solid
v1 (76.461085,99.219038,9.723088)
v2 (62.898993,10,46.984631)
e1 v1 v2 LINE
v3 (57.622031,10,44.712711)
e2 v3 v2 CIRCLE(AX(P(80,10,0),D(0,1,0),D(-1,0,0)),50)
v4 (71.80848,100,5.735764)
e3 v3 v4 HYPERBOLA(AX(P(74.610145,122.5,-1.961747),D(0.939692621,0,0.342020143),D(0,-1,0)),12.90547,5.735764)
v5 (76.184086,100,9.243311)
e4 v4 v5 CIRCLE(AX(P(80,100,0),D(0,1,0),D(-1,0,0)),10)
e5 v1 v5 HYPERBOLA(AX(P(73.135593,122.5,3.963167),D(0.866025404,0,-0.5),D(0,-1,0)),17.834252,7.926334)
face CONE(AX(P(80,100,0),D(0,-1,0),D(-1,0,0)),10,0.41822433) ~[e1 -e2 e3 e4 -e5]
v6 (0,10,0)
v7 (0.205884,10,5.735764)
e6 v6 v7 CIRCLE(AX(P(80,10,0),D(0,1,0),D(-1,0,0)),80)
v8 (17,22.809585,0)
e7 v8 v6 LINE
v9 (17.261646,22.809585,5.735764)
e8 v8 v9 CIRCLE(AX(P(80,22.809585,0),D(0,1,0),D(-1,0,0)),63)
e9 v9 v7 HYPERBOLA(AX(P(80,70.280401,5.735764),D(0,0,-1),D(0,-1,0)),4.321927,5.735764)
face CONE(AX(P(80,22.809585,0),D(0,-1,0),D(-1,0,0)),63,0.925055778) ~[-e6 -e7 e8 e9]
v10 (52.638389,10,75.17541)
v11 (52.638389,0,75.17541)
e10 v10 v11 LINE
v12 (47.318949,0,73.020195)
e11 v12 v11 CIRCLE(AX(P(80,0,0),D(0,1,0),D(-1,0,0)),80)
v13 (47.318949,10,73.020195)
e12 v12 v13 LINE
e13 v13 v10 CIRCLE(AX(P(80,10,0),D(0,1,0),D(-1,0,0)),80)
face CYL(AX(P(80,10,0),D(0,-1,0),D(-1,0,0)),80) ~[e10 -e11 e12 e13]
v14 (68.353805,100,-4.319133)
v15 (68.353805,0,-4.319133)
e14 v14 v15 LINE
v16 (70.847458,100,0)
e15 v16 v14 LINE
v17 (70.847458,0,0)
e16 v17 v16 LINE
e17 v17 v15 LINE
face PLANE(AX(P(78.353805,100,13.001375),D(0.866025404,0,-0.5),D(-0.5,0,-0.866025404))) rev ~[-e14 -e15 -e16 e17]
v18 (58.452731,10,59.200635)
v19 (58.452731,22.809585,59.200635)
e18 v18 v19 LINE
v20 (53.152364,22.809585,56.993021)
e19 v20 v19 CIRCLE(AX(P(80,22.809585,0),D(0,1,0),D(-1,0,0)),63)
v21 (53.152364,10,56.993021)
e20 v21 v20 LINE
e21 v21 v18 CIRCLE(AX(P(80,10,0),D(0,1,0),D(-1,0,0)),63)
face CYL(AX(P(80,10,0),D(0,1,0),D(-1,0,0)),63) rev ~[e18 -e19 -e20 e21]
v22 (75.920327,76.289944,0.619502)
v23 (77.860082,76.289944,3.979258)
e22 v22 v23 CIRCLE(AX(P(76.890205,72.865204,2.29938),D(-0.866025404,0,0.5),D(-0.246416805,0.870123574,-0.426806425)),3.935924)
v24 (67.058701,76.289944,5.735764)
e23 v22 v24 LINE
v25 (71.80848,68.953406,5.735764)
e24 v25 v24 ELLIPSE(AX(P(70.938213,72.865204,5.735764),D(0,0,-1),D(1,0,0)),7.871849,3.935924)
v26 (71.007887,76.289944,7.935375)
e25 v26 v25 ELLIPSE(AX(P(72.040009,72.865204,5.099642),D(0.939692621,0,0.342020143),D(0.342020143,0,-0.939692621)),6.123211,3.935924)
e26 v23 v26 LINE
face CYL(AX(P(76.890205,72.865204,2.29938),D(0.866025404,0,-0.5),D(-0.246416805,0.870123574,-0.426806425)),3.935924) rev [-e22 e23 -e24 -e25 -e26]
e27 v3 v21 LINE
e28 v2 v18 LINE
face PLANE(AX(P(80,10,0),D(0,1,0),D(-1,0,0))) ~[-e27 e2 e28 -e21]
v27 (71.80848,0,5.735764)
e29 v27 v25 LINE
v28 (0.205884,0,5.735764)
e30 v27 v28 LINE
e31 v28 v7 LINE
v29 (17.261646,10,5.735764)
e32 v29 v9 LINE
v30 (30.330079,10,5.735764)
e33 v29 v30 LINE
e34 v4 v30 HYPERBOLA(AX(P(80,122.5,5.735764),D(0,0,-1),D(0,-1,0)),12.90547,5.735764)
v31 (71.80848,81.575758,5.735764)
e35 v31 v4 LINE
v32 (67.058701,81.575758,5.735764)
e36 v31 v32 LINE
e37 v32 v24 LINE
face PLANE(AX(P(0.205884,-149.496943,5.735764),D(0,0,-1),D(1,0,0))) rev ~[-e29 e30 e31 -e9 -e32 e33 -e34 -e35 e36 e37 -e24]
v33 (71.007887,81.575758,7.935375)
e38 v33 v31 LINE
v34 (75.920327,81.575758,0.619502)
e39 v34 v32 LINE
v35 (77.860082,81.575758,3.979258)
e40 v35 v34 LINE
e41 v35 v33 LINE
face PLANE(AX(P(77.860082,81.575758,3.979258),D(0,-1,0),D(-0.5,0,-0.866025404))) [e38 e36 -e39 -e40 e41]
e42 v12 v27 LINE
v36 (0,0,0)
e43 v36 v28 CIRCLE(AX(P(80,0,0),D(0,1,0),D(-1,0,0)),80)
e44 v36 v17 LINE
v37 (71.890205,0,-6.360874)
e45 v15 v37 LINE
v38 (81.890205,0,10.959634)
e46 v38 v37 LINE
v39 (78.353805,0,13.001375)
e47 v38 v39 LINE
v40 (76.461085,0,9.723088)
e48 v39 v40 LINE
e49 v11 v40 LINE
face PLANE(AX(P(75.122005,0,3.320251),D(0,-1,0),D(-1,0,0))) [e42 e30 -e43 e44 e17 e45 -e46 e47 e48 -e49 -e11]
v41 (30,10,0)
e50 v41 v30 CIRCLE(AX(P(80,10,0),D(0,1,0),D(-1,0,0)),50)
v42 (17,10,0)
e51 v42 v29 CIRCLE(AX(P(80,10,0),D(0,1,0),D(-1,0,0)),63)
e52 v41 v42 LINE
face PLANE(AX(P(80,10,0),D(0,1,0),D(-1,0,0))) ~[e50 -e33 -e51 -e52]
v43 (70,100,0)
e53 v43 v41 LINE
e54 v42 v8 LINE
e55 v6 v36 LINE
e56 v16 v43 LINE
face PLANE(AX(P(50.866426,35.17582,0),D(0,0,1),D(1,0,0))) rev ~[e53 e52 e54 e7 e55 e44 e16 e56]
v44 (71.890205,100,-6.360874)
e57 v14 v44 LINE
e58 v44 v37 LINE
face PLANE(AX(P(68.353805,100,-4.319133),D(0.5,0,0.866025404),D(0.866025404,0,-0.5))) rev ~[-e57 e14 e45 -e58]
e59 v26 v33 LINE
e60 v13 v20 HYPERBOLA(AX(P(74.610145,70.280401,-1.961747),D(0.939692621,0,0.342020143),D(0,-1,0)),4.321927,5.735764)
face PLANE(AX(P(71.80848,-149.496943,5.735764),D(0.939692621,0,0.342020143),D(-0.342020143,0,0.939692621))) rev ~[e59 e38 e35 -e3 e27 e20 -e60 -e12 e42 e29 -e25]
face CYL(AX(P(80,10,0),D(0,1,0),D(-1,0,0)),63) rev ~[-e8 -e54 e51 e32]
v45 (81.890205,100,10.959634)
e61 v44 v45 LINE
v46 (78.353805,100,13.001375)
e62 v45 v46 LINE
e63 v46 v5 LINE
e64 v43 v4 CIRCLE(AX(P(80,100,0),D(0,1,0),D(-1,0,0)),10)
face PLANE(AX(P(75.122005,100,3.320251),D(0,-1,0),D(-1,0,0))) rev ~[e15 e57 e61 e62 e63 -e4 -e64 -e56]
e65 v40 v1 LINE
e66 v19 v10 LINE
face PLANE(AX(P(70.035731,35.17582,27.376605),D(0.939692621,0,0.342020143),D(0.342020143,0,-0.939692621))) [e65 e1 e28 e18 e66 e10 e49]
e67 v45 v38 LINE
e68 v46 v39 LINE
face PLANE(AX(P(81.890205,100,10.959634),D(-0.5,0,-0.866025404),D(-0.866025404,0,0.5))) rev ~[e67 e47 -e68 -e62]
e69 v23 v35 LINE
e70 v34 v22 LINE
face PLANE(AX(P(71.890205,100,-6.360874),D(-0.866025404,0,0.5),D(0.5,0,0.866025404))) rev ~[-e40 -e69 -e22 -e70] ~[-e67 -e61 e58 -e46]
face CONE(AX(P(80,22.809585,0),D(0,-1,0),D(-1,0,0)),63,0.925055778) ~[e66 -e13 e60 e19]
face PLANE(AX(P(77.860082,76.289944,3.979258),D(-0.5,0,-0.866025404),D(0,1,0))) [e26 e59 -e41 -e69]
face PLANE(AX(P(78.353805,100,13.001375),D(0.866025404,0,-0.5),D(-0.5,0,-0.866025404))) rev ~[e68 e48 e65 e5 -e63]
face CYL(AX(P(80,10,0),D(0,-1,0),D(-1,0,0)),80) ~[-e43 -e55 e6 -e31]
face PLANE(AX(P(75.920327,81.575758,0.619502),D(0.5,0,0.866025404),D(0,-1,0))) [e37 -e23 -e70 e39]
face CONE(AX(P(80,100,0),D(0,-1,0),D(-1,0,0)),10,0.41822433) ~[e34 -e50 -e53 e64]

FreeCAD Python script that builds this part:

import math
import FreeCAD as App
import Part
import Sketcher
Q = App.Units.Quantity

doc = App.newDocument("Part")
body = doc.addObject("PartDesign::Body", "Body")

sketch1 = body.newObject("Sketcher::SketchObject", "Sketch")
sketch1.AttachmentSupport = (doc.getObject("XY_Plane"), [""])
sketch1.MapMode = "FlatFace"
sketch1.addGeometry([
    Part.LineSegment(App.Vector(0, 0, 0), App.Vector(80, 0, 0)),
    Part.LineSegment(App.Vector(80, 0, 0), App.Vector(80, 100, 0)),
    Part.LineSegment(App.Vector(80, 100, 0), App.Vector(70, 100, 0)),
    Part.LineSegment(App.Vector(70, 100, 0), App.Vector(30, 10, 0)),
    Part.LineSegment(App.Vector(30, 10, 0), App.Vector(17, 10, 0)),
    Part.LineSegment(App.Vector(17, 10, 0), App.Vector(17, 23, 0)),
    Part.LineSegment(App.Vector(17, 23, 0), App.Vector(0, 10, 0)),
    Part.LineSegment(App.Vector(0, 10, 0), App.Vector(0, 0, 0)),
], False)
sketch1.addGeometry(Part.LineSegment(App.Vector(80, 0, 0), App.Vector(80, 100, 0)), True)
sketch1.addConstraint([
    Sketcher.Constraint("Coincident", 0, 2, 1, 1),
    Sketcher.Constraint("Coincident", 1, 2, 2, 1),
    Sketcher.Constraint("Coincident", 2, 2, 3, 1),
    Sketcher.Constraint("Coincident", 3, 2, 4, 1),
    Sketcher.Constraint("Coincident", 4, 2, 5, 1),
    Sketcher.Constraint("Coincident", 5, 2, 6, 1),
    Sketcher.Constraint("Coincident", 6, 2, 7, 1),
    Sketcher.Constraint("Coincident", 7, 2, 0, 1),
    Sketcher.Constraint("Horizontal", 0),
    Sketcher.Constraint("Vertical", 1),
    Sketcher.Constraint("Horizontal", 2),
    Sketcher.Constraint("Horizontal", 4),
    Sketcher.Constraint("Vertical", 5),
    Sketcher.Constraint("Vertical", 7),
    Sketcher.Constraint("Vertical", 8),
    Sketcher.Constraint("Coincident", 7, 2, -1, 1),
    Sketcher.Constraint("Coincident", 8, 1, 0, 2),
    Sketcher.Constraint("Horizontal", 4, 2, 6, 2),
    Sketcher.Constraint("Horizontal", 2, 2, 8, 2),
    Sketcher.Constraint("Equal", 2, 7),
    Sketcher.Constraint("DistanceX", 0, 1, 0, 2, Q("80 mm")),
    Sketcher.Constraint("DistanceX", 2, 2, 2, 1, Q("10 mm")),
    Sketcher.Constraint("DistanceX", 4, 2, 4, 1, Q("13 mm")),
    Sketcher.Constraint("DistanceY", 1, 1, 1, 2, Q("100 mm")),
    Sketcher.Constraint("DistanceX", -1, 1, 3, 2, Q("30 mm")),
    Sketcher.Constraint("DistanceY", 5, 1, 5, 2, Q("12.809585 mm")),
])
revolution = body.newObject("PartDesign::Revolution", "Revolution")
revolution.Profile = sketch1
revolution.ReferenceAxis = (sketch1, ["Axis0"])
revolution.Angle = 70

sketch2 = body.newObject("Sketcher::SketchObject", "Sketch001")
sketch2.AttachmentSupport = (doc.getObject("XZ_Plane"), [""])
sketch2.MapMode = "FlatFace"
sketch2.addGeometry([
    Part.LineSegment(App.Vector(72, 6, 0), App.Vector(0, 6, 0)),
    Part.LineSegment(App.Vector(0, 6, 0), App.Vector(2, 73, 0)),
    Part.LineSegment(App.Vector(2, 73, 0), App.Vector(47, 73, 0)),
    Part.LineSegment(App.Vector(47, 73, 0), App.Vector(72, 6, 0)),
], False)
sketch2.addConstraint([
    Sketcher.Constraint("Coincident", 0, 2, 1, 1),
    Sketcher.Constraint("Coincident", 1, 2, 2, 1),
    Sketcher.Constraint("Coincident", 2, 2, 3, 1),
    Sketcher.Constraint("Coincident", 3, 2, 0, 1),
    Sketcher.Constraint("Horizontal", 0),
    Sketcher.Constraint("Horizontal", 2),
    Sketcher.Constraint("Angle", 3, Q("-70 deg")),
    Sketcher.Constraint("DistanceX", 0, 2, 0, 1, Q("71.602596 mm")),
    Sketcher.Constraint("DistanceX", 2, 1, 2, 2, Q("45.108887 mm")),
    Sketcher.Constraint("DistanceX", -1, 1, 2, 2, Q("47.318949 mm")),
    Sketcher.Constraint("DistanceX", -1, 1, 3, 2, Q("71.80848 mm")),
    Sketcher.Constraint("DistanceY", -1, 1, 0, 2, Q("5.735764 mm")),
])
pocket1 = body.newObject("PartDesign::Pocket", "Pocket")
pocket1.Profile = sketch2
pocket1.Type = "ThroughAll"
pocket1.Midplane = True

sketch3 = body.newObject("Sketcher::SketchObject", "Sketch002")
sketch3.AttachmentSupport = (doc.getObject("XZ_Plane"), [""])
sketch3.MapMode = "FlatFace"
sketch3.AttachmentOffset = App.Placement(App.Vector(0, 0, -100), App.Rotation())
sketch3.addGeometry([
    Part.LineSegment(App.Vector(81.9, 11, 0), App.Vector(71.9, -6.4, 0)),
    Part.LineSegment(App.Vector(71.9, -6.4, 0), App.Vector(68.4, -4.3, 0)),
    Part.LineSegment(App.Vector(68.4, -4.3, 0), App.Vector(78.4, 13, 0)),
    Part.LineSegment(App.Vector(78.4, 13, 0), App.Vector(81.9, 11, 0)),
], False)
sketch3.addConstraint([
    Sketcher.Constraint("Coincident", 0, 2, 1, 1),
    Sketcher.Constraint("Coincident", 1, 2, 2, 1),
    Sketcher.Constraint("Coincident", 2, 2, 3, 1),
    Sketcher.Constraint("Coincident", 3, 2, 0, 1),
    Sketcher.Constraint("Perpendicular", 0, 1),
    Sketcher.Constraint("Perpendicular", 1, 2),
    Sketcher.Constraint("Perpendicular", 2, 3),
    Sketcher.Constraint("Angle", 0, Q("-120 deg")),
    Sketcher.Constraint("Distance", 0, Q("20 mm")),
    Sketcher.Constraint("DistanceX", 1, 2, 0, 2, Q("3.536399 mm")),
    Sketcher.Constraint("DistanceX", -1, 1, 0, 2, Q("71.890205 mm")),
    Sketcher.Constraint("DistanceY", 0, 2, -1, 1, Q("6.360874 mm")),
])
pad1 = body.newObject("PartDesign::Pad", "Pad")
pad1.Profile = sketch3
pad1.Length = 100

sketch4 = body.newObject("Sketcher::SketchObject", "Sketch003")
sketch4.AttachmentSupport = (doc.getObject("XZ_Plane"), [""])
sketch4.MapMode = "FlatFace"
sketch4.addGeometry([
    Part.LineSegment(App.Vector(72, -6, 0), App.Vector(82, 11, 0)),
    Part.LineSegment(App.Vector(82, 11, 0), App.Vector(87, -1, 0)),
    Part.LineSegment(App.Vector(87, -1, 0), App.Vector(72, -6, 0)),
], False)
sketch4.addConstraint([
    Sketcher.Constraint("Coincident", 0, 2, 1, 1),
    Sketcher.Constraint("Coincident", 1, 2, 2, 1),
    Sketcher.Constraint("Coincident", 2, 2, 0, 1),
    Sketcher.Constraint("Angle", 0, Q("60 deg")),
    Sketcher.Constraint("Distance", 0, Q("20 mm")),
    Sketcher.Constraint("DistanceX", 0, 2, 1, 2, Q("5.293582 mm")),
    Sketcher.Constraint("DistanceY", 1, 2, 0, 2, Q("12.211639 mm")),
    Sketcher.Constraint("DistanceX", -1, 1, 0, 2, Q("81.890205 mm")),
    Sketcher.Constraint("DistanceY", -1, 1, 0, 2, Q("10.959634 mm")),
])
pocket2 = body.newObject("PartDesign::Pocket", "Pocket001")
pocket2.Profile = sketch4
pocket2.Type = "ThroughAll"
pocket2.Midplane = True

sketch5 = body.newObject("Sketcher::SketchObject", "Sketch004")
sketch5.Placement = App.Placement(App.Vector(56.671993, 0, -32.71959), App.Rotation(App.Vector(-0.5, 0, -0.866025404), App.Vector(0, 1, 0), App.Vector(0.866025404, 0, -0.5), "ZXY"))
sketch5.addGeometry([
    Part.LineSegment(App.Vector(-38.5, 81.6, 0), App.Vector(-42.4, 81.6, 0)),
    Part.LineSegment(App.Vector(-42.4, 81.6, 0), App.Vector(-42.4, 76.3, 0)),
    Part.ArcOfCircle(Part.Circle(App.Vector(-40.4, 72.9, 0), App.Vector(0, 0, 1), 3.9), math.radians(120), math.radians(420)),
    Part.LineSegment(App.Vector(-38.5, 76.3, 0), App.Vector(-38.5, 81.6, 0)),
], False)
sketch5.addConstraint([
    Sketcher.Constraint("Coincident", 0, 2, 1, 1),
    Sketcher.Constraint("Coincident", 1, 2, 2, 1),
    Sketcher.Constraint("Coincident", 2, 2, 3, 1),
    Sketcher.Constraint("Coincident", 3, 2, 0, 1),
    Sketcher.Constraint("Horizontal", 0),
    Sketcher.Constraint("Vertical", 1),
    Sketcher.Constraint("Vertical", 3),
    Sketcher.Constraint("Horizontal", 1, 2, 2, 2),
    Sketcher.Constraint("Radius", 2, Q("3.935924 mm")),
    Sketcher.Constraint("DistanceX", 0, 2, 0, 1, Q("3.879512 mm")),
    Sketcher.Constraint("DistanceY", 1, 2, 1, 1, Q("5.285813 mm")),
    Sketcher.Constraint("DistanceX", 0, 2, -1, 1, Q("42.37618 mm")),
    Sketcher.Constraint("DistanceY", -1, 1, 2, 3, Q("72.865204 mm")),
])
pocket3 = body.newObject("PartDesign::Pocket", "Pocket002")
pocket3.Profile = sketch5
pocket3.Length = 100

doc.recompute()
